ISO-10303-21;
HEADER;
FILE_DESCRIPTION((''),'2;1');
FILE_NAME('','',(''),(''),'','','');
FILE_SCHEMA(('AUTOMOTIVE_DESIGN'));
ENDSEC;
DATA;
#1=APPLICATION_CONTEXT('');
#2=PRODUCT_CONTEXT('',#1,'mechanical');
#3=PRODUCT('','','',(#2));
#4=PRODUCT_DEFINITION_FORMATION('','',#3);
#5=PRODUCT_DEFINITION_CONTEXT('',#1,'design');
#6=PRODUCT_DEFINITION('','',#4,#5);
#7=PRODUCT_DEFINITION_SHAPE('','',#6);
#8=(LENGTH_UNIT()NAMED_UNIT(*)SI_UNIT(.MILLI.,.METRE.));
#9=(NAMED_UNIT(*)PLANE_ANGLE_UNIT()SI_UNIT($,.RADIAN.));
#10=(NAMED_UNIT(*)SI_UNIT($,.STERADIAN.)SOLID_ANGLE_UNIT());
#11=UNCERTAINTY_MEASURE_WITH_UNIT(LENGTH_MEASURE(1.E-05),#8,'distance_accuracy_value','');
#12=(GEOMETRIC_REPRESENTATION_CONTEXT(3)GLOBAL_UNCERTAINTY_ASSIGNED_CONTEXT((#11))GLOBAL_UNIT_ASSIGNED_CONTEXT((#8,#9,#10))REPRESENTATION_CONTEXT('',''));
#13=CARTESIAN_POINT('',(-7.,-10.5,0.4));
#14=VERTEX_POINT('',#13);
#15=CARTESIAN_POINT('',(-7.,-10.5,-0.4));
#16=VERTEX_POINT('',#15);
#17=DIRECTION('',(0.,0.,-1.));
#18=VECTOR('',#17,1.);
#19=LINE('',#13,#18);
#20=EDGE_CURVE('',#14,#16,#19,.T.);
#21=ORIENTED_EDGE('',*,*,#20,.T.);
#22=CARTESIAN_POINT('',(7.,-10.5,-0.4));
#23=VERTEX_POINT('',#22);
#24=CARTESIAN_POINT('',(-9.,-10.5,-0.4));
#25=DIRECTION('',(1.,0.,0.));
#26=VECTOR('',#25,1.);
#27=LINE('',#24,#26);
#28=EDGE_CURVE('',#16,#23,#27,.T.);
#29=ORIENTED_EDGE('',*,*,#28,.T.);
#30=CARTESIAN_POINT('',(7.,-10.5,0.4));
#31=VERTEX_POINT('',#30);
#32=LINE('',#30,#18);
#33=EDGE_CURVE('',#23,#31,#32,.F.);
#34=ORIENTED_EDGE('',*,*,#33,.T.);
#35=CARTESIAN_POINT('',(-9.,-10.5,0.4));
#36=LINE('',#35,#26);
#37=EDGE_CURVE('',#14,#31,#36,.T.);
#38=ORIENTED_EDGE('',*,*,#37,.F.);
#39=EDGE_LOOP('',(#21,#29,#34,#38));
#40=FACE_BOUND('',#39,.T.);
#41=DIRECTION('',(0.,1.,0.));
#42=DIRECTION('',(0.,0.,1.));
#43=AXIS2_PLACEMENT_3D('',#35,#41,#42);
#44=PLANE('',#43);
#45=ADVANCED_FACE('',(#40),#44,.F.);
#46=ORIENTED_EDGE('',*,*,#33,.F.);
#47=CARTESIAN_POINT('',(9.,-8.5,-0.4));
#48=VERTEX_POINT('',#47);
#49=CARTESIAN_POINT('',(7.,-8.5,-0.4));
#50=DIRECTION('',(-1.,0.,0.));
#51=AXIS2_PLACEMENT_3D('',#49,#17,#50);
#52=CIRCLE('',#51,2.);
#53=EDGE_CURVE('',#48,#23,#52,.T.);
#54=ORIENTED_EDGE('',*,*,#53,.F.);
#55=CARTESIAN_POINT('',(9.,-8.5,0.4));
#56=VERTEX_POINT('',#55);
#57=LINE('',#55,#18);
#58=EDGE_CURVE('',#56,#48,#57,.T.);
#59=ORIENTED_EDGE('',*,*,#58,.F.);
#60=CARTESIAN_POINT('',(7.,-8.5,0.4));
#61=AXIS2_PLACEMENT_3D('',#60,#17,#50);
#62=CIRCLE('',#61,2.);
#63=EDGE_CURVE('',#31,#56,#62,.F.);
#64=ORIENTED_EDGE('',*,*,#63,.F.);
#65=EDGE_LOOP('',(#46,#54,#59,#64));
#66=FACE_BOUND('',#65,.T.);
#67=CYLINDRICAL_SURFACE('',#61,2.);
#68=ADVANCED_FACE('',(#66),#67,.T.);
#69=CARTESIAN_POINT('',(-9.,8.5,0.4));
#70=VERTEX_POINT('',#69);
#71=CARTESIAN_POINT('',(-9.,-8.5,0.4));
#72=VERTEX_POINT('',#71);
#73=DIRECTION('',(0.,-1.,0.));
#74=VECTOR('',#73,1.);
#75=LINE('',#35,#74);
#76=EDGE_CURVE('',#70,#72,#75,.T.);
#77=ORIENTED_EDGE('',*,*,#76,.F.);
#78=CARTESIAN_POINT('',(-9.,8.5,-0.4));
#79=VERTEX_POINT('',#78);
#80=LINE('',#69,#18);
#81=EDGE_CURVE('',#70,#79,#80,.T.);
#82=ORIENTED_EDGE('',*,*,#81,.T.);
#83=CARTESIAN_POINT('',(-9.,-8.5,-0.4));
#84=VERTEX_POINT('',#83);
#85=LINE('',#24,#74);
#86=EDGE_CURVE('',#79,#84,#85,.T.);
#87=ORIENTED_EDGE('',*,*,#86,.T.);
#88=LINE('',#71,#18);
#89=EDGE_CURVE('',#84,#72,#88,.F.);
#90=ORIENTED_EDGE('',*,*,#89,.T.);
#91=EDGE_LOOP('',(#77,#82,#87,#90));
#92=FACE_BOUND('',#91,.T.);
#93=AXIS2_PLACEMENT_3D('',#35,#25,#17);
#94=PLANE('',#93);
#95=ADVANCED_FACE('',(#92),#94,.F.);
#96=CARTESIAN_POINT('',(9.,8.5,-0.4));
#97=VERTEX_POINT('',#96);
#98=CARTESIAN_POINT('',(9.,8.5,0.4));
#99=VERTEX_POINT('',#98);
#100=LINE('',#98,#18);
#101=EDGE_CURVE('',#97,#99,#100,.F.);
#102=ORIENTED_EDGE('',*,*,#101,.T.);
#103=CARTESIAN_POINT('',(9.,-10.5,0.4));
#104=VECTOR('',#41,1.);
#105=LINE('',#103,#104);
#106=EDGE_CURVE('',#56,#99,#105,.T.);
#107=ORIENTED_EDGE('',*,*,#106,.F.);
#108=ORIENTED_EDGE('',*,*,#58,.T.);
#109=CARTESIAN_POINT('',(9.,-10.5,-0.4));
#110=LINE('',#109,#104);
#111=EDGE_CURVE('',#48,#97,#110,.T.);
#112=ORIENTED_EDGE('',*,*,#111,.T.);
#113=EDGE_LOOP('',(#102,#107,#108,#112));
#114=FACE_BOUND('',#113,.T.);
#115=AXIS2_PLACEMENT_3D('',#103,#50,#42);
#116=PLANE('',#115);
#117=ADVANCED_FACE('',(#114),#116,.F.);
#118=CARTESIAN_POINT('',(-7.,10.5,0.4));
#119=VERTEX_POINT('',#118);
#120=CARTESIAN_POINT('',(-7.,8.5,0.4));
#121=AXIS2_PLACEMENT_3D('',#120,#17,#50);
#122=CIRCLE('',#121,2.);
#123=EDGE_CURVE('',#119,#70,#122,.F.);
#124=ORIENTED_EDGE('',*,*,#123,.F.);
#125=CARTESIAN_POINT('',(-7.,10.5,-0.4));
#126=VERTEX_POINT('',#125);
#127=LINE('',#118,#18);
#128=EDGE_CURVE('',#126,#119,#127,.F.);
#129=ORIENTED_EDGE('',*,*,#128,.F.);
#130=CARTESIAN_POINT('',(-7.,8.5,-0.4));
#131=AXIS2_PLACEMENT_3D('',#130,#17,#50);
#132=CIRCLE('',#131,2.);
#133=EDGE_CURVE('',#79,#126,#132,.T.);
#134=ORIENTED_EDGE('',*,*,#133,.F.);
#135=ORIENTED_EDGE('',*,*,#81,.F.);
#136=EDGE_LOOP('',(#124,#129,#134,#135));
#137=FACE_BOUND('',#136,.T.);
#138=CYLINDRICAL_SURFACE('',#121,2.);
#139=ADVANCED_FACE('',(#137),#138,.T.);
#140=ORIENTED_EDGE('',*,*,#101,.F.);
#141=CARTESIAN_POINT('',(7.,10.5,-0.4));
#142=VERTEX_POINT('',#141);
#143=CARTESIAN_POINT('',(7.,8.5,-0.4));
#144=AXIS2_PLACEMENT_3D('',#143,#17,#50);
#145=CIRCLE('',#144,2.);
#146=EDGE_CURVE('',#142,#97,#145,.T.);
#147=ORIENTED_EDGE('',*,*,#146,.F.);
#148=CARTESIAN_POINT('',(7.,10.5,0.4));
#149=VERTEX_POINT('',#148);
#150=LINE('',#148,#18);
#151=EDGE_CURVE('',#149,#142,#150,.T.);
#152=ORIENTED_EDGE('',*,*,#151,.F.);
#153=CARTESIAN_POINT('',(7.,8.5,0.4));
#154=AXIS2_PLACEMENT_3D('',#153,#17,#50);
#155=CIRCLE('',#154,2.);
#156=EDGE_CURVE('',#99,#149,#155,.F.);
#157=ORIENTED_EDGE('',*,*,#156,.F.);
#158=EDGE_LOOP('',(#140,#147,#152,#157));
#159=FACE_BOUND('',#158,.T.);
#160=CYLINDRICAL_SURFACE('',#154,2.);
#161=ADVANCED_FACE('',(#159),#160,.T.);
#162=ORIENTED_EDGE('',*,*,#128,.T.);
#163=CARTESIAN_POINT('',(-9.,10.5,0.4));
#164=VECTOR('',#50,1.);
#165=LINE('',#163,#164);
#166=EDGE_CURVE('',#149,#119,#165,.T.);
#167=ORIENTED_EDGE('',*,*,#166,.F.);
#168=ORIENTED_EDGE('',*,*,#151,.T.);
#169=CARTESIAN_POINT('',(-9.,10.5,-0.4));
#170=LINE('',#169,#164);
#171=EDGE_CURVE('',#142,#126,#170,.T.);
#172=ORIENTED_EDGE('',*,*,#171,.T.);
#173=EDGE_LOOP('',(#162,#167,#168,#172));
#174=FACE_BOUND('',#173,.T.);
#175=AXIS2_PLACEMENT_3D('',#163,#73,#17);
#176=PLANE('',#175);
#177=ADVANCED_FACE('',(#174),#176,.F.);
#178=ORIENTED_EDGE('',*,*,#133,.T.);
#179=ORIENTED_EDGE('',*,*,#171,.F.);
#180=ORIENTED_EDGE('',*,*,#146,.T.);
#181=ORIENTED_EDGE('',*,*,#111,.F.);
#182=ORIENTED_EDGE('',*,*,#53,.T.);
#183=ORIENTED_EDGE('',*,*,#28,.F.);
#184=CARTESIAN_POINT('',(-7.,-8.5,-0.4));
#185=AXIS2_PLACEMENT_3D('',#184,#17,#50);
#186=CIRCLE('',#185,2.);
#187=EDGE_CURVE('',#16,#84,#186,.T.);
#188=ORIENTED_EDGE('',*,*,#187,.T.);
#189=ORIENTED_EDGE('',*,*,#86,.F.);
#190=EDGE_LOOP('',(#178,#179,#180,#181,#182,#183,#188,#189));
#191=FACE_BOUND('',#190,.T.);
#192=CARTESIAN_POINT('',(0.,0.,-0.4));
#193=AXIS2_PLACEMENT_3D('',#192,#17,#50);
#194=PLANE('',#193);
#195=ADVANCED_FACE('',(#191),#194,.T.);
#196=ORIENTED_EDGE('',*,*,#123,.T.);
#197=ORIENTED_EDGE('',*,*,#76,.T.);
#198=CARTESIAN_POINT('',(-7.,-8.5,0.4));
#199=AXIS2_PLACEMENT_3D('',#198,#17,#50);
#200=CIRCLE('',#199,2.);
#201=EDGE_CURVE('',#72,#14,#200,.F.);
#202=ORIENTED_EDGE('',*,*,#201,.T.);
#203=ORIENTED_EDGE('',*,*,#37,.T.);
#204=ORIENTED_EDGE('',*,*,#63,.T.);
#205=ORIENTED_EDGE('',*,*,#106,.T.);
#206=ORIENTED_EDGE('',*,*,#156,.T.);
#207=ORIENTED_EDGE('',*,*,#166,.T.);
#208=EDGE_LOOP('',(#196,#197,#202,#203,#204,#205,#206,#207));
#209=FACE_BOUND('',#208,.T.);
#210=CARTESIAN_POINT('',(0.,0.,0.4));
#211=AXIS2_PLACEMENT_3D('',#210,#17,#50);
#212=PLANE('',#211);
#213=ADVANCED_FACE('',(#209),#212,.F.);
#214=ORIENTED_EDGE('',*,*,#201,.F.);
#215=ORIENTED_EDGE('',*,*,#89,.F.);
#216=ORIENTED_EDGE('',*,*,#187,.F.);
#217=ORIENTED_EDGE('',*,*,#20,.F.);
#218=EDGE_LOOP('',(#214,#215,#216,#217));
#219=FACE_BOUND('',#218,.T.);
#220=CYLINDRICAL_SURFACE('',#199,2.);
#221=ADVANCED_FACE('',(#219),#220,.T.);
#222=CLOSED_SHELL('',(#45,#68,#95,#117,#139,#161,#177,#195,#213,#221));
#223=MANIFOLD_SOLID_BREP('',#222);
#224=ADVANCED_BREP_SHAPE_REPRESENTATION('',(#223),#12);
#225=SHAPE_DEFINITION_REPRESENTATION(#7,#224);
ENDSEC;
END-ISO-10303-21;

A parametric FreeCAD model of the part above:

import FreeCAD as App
import Part
import Sketcher
from FreeCAD import Vector
Q = App.Units.Quantity


def edges_at(feature, points):
    """Names of the edges that pass closest to the given points."""
    edges = feature.Shape.Edges
    near = lambda p: min(range(len(edges)), key=lambda i: edges[i].distToShape(Part.Vertex(*p))[0])
    return sorted({f"Edge{near(p) + 1}" for p in points})

doc = App.newDocument("Part")
body = doc.addObject("PartDesign::Body", "Body")

# Sketch on XY plane
sketch1 = doc.addObject("Sketcher::SketchObject", "Sketch")
body.addObject(sketch1)
sketch1.AttachmentSupport = (doc.XY_Plane, [""])
sketch1.MapMode = "FlatFace"
sketch1.addGeometry(Part.LineSegment(Vector(-9, 10.5, 0), Vector(-9, -10.5, 0)), False)
sketch1.addGeometry(Part.LineSegment(Vector(-9, -10.5, 0), Vector(9, -10.5, 0)), False)
sketch1.addGeometry(Part.LineSegment(Vector(9, -10.5, 0), Vector(9, 10.5, 0)), False)
sketch1.addGeometry(Part.LineSegment(Vector(9, 10.5, 0), Vector(-9, 10.5, 0)), False)
sketch1.addConstraint(Sketcher.Constraint("Coincident", 0, 2, 1, 1))
sketch1.addConstraint(Sketcher.Constraint("Coincident", 1, 2, 2, 1))
sketch1.addConstraint(Sketcher.Constraint("Coincident", 2, 2, 3, 1))
sketch1.addConstraint(Sketcher.Constraint("Coincident", 3, 2, 0, 1))
sketch1.addConstraint(Sketcher.Constraint("Vertical", 0))
sketch1.addConstraint(Sketcher.Constraint("Horizontal", 1))
sketch1.addConstraint(Sketcher.Constraint("Vertical", 2))
sketch1.addConstraint(Sketcher.Constraint("Horizontal", 3))
sketch1.addConstraint(Sketcher.Constraint("Symmetric", 0, 2, 2, 2, -1, 1))
sketch1.addConstraint(Sketcher.Constraint("DistanceX", 1, 1, 1, 2, Q("18 mm")))
sketch1.addConstraint(Sketcher.Constraint("DistanceY", 0, 2, 0, 1, Q("21 mm")))
pad1 = doc.addObject("PartDesign::Pad", "Pad")
body.addObject(pad1)
pad1.Profile = sketch1
pad1.Length = 0.8
pad1.Midplane = True
doc.recompute()

fillet = doc.addObject("PartDesign::Fillet", "Fillet")
body.addObject(fillet)
fillet.Base = (pad1, edges_at(pad1, [
    (9, -10.5, 0),
    (-9, -10.5, 0),
    (-9, 10.5, 0),
    (9, 10.5, 0),
]))
fillet.Radius = 2

doc.recompute()
